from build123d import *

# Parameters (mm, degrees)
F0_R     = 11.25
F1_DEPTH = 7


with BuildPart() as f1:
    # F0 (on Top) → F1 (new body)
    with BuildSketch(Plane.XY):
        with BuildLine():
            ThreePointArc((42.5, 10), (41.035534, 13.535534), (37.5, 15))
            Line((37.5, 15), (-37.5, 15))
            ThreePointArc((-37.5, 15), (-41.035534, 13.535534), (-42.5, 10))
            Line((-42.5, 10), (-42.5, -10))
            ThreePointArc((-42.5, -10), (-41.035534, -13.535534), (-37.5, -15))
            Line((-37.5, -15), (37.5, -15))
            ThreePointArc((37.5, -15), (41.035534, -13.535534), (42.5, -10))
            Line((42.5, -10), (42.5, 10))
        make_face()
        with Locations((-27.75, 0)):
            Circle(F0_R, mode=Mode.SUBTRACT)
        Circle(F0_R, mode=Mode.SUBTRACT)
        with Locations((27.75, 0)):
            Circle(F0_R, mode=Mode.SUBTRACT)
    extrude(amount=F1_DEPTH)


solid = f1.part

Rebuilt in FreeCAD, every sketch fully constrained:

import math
import FreeCAD as App
import Part
import Sketcher
Q = App.Units.Quantity

doc = App.newDocument("Part")
params = doc.addObject("Spreadsheet::Sheet", "Params")
for row, (alias, value) in enumerate([
    ("sketch1_radius", "5 mm"),
    ("sketch1_diameter", "22.5 mm"),
    ("sketch1_width", "75 mm"),
    ("sketch1_height", "20 mm"),
    ("pad1_length", "7 mm"),
], start=1):
    params.set(f"A{row}", alias)
    params.set(f"B{row}", "=" + value)
    params.setAlias(f"B{row}", alias)

body = doc.addObject("PartDesign::Body", "Body")

# Sketch on XY plane
sketch1 = body.newObject("Sketcher::SketchObject", "Sketch")
sketch1.AttachmentSupport = (doc.getObject("XY_Plane"), [""])
sketch1.MapMode = "FlatFace"
sketch1.addGeometry([
    Part.ArcOfCircle(Part.Circle(App.Vector(37.5, 10, 0), App.Vector(0, 0, 1), 5), math.radians(0), math.radians(90)),  # 0
    Part.LineSegment(App.Vector(37.5, 15, 0), App.Vector(-37.5, 15, 0)),  # 1
    Part.ArcOfCircle(Part.Circle(App.Vector(-37.5, 10, 0), App.Vector(0, 0, 1), 5), math.radians(90), math.radians(180)),  # 2
    Part.LineSegment(App.Vector(-42.5, 10, 0), App.Vector(-42.5, -10, 0)),  # 3
    Part.ArcOfCircle(Part.Circle(App.Vector(-37.5, -10, 0), App.Vector(0, 0, 1), 5), math.radians(180), math.radians(270)),  # 4
    Part.LineSegment(App.Vector(-37.5, -15, 0), App.Vector(37.5, -15, 0)),  # 5
    Part.ArcOfCircle(Part.Circle(App.Vector(37.5, -10, 0), App.Vector(0, 0, 1), 5), math.radians(-90), math.radians(0)),  # 6
    Part.LineSegment(App.Vector(42.5, -10, 0), App.Vector(42.5, 10, 0)),  # 7
    Part.Circle(App.Vector(-27.8, 0, 0), App.Vector(0, 0, 1), 11.2),  # 8
    Part.Circle(App.Vector(0, 0, 0), App.Vector(0, 0, 1), 11.2),  # 9
    Part.Circle(App.Vector(27.8, 0, 0), App.Vector(0, 0, 1), 11.2),  # 10
], False)
sketch1.addConstraint([
    Sketcher.Constraint("Tangent", 0, 2, 1, 1),
    Sketcher.Constraint("Tangent", 1, 2, 2, 1),
    Sketcher.Constraint("Tangent", 2, 2, 3, 1),
    Sketcher.Constraint("Tangent", 3, 2, 4, 1),
    Sketcher.Constraint("Tangent", 4, 2, 5, 1),
    Sketcher.Constraint("Tangent", 5, 2, 6, 1),
    Sketcher.Constraint("Tangent", 6, 2, 7, 1),
    Sketcher.Constraint("Tangent", 7, 2, 0, 1),
    Sketcher.Constraint("Horizontal", 1),
    Sketcher.Constraint("Vertical", 3),
    Sketcher.Constraint("Horizontal", 5),
    Sketcher.Constraint("Vertical", 7),
    Sketcher.Constraint("Coincident", 9, 3, -1, 1),
    Sketcher.Constraint("Equal", 0, 2),
    Sketcher.Constraint("Equal", 2, 4),
    Sketcher.Constraint("Equal", 4, 6),
    Sketcher.Constraint("Equal", 8, 9),
    Sketcher.Constraint("Equal", 9, 10),
    Sketcher.Constraint("Symmetric", 0, 3, 4, 3, -1, 1),
    Sketcher.Constraint("Symmetric", 8, 3, 10, 3, -1, 1),
    Sketcher.Constraint("PointOnObject", 8, 3, -1),
    Sketcher.Constraint("Radius", 0, Q("5 mm")),
    Sketcher.Constraint("Diameter", 8, Q("22.5 mm")),
    Sketcher.Constraint("DistanceX", 1, 2, 1, 1, Q("75 mm")),
    Sketcher.Constraint("DistanceY", 3, 2, 3, 1, Q("20 mm")),
    Sketcher.Constraint("DistanceX", 8, 3, 10, 3, Q("55.5 mm")),
])
sketch1.setExpression("Constraints[21]", "Params.sketch1_radius")
sketch1.setExpression("Constraints[22]", "Params.sketch1_diameter")
sketch1.setExpression("Constraints[23]", "Params.sketch1_width")
sketch1.setExpression("Constraints[24]", "Params.sketch1_height")
pad1 = body.newObject("PartDesign::Pad", "Pad")
pad1.Profile = sketch1
pad1.setExpression("Length", "Params.pad1_length")

doc.recompute()
